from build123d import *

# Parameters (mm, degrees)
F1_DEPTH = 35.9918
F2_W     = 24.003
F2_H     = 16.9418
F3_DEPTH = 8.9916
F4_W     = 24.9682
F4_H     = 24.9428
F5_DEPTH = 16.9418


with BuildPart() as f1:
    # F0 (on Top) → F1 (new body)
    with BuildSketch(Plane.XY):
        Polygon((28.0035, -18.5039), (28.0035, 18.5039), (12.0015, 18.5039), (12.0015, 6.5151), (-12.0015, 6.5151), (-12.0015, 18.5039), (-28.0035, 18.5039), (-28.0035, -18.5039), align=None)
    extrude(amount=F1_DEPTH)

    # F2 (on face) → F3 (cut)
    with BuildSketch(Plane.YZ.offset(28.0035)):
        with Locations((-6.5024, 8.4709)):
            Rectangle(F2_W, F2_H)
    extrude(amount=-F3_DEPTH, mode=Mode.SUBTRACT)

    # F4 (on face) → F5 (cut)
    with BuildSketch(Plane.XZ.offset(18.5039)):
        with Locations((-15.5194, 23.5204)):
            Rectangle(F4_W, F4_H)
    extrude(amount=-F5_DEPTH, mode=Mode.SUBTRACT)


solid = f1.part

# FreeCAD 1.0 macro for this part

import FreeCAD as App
import Part
import Sketcher
from FreeCAD import Vector
Q = App.Units.Quantity


def add_polygon(sketch, points):
    """Adds a closed chain of lines whose ends are joined by coincident constraints."""
    first, n = sketch.GeometryCount, len(points)
    for a, b in zip(points, points[1:] + points[:1]):
        sketch.addGeometry(Part.LineSegment(App.Vector(*a, 0), App.Vector(*b, 0)), False)
    for i in range(n):
        sketch.addConstraint(Sketcher.Constraint("Coincident", first + i, 2, first + (i + 1) % n, 1))

doc = App.newDocument("Part")
body = doc.addObject("PartDesign::Body", "Body")

# Sketch on XY plane
sketch1 = body.newObject("Sketcher::SketchObject", "Sketch")
sketch1.AttachmentSupport = (doc.getObject("XY_Plane"), [""])
sketch1.MapMode = "FlatFace"
add_polygon(sketch1, [(28, -19), (28, 19), (12, 19), (12, 7), (-12, 7), (-12, 19), (-28, 19), (-28, -19)])  # lines 0-7
sketch1.addConstraint(Sketcher.Constraint("Vertical", 0))
sketch1.addConstraint(Sketcher.Constraint("Horizontal", 1))
sketch1.addConstraint(Sketcher.Constraint("Vertical", 2))
sketch1.addConstraint(Sketcher.Constraint("Horizontal", 3))
sketch1.addConstraint(Sketcher.Constraint("Vertical", 4))
sketch1.addConstraint(Sketcher.Constraint("Horizontal", 5))
sketch1.addConstraint(Sketcher.Constraint("Vertical", 6))
sketch1.addConstraint(Sketcher.Constraint("Horizontal", 7))
sketch1.addConstraint(Sketcher.Constraint("Symmetric", 0, 2, 6, 2, -1, 1))
sketch1.addConstraint(Sketcher.Constraint("Symmetric", 1, 2, 4, 2, -2))
sketch1.addConstraint(Sketcher.Constraint("DistanceX", 1, 2, 1, 1, Q("0.63 in")))
sketch1.addConstraint(Sketcher.Constraint("DistanceX", 3, 2, 3, 1, Q("0.945 in")))
sketch1.addConstraint(Sketcher.Constraint("DistanceY", 0, 1, 0, 2, Q("1.457 in")))
sketch1.addConstraint(Sketcher.Constraint("DistanceY", 2, 2, 2, 1, Q("0.472 in")))
pad1 = body.newObject("PartDesign::Pad", "Pad")
pad1.Profile = sketch1
pad1.Length = Q("1.417 in")

# Sketch on YZ plane
sketch2 = body.newObject("Sketcher::SketchObject", "Sketch001")
sketch2.AttachmentSupport = (doc.getObject("YZ_Plane"), [""])
sketch2.MapMode = "FlatFace"
sketch2.AttachmentOffset = App.Placement(Vector(0, 0, 1.1025 * 25.4), App.Rotation())
add_polygon(sketch2, [(-19, 17), (-19, 0), (5, 0), (5, 17)])  # lines 0-3
sketch2.addConstraint(Sketcher.Constraint("Vertical", 0))
sketch2.addConstraint(Sketcher.Constraint("Horizontal", 1))
sketch2.addConstraint(Sketcher.Constraint("Vertical", 2))
sketch2.addConstraint(Sketcher.Constraint("Horizontal", 3))
sketch2.addConstraint(Sketcher.Constraint("PointOnObject", 0, 2, -1))
sketch2.addConstraint(Sketcher.Constraint("DistanceX", 1, 1, 1, 2, Q("0.945 in")))
sketch2.addConstraint(Sketcher.Constraint("DistanceY", 0, 2, 0, 1, Q("0.667 in")))
sketch2.addConstraint(Sketcher.Constraint("DistanceX", 0, 2, -1, 1, Q("0.7285 in")))
pocket1 = body.newObject("PartDesign::Pocket", "Pocket")
pocket1.Profile = sketch2
pocket1.Length = Q("0.354 in")

# Sketch on XZ plane
sketch3 = body.newObject("Sketcher::SketchObject", "Sketch002")
sketch3.AttachmentSupport = (doc.getObject("XZ_Plane"), [""])
sketch3.MapMode = "FlatFace"
sketch3.AttachmentOffset = App.Placement(Vector(0, 0, 0.7285 * 25.4), App.Rotation())
add_polygon(sketch3, [(-28, 36), (-28, 11), (-3, 11), (-3, 36)])  # lines 0-3
sketch3.addConstraint(Sketcher.Constraint("Vertical", 0))
sketch3.addConstraint(Sketcher.Constraint("Horizontal", 1))
sketch3.addConstraint(Sketcher.Constraint("Vertical", 2))
sketch3.addConstraint(Sketcher.Constraint("Horizontal", 3))
sketch3.addConstraint(Sketcher.Constraint("DistanceX", 1, 1, 1, 2, Q("0.983 in")))
sketch3.addConstraint(Sketcher.Constraint("DistanceY", 0, 2, 0, 1, Q("0.982 in")))
sketch3.addConstraint(Sketcher.Constraint("DistanceY", -1, 1, 0, 2, Q("0.435 in")))
sketch3.addConstraint(Sketcher.Constraint("DistanceX", 0, 2, -1, 1, Q("1.1025 in")))
pocket2 = body.newObject("PartDesign::Pocket", "Pocket001")
pocket2.Profile = sketch3
pocket2.Length = Q("0.667 in")

doc.recompute()
